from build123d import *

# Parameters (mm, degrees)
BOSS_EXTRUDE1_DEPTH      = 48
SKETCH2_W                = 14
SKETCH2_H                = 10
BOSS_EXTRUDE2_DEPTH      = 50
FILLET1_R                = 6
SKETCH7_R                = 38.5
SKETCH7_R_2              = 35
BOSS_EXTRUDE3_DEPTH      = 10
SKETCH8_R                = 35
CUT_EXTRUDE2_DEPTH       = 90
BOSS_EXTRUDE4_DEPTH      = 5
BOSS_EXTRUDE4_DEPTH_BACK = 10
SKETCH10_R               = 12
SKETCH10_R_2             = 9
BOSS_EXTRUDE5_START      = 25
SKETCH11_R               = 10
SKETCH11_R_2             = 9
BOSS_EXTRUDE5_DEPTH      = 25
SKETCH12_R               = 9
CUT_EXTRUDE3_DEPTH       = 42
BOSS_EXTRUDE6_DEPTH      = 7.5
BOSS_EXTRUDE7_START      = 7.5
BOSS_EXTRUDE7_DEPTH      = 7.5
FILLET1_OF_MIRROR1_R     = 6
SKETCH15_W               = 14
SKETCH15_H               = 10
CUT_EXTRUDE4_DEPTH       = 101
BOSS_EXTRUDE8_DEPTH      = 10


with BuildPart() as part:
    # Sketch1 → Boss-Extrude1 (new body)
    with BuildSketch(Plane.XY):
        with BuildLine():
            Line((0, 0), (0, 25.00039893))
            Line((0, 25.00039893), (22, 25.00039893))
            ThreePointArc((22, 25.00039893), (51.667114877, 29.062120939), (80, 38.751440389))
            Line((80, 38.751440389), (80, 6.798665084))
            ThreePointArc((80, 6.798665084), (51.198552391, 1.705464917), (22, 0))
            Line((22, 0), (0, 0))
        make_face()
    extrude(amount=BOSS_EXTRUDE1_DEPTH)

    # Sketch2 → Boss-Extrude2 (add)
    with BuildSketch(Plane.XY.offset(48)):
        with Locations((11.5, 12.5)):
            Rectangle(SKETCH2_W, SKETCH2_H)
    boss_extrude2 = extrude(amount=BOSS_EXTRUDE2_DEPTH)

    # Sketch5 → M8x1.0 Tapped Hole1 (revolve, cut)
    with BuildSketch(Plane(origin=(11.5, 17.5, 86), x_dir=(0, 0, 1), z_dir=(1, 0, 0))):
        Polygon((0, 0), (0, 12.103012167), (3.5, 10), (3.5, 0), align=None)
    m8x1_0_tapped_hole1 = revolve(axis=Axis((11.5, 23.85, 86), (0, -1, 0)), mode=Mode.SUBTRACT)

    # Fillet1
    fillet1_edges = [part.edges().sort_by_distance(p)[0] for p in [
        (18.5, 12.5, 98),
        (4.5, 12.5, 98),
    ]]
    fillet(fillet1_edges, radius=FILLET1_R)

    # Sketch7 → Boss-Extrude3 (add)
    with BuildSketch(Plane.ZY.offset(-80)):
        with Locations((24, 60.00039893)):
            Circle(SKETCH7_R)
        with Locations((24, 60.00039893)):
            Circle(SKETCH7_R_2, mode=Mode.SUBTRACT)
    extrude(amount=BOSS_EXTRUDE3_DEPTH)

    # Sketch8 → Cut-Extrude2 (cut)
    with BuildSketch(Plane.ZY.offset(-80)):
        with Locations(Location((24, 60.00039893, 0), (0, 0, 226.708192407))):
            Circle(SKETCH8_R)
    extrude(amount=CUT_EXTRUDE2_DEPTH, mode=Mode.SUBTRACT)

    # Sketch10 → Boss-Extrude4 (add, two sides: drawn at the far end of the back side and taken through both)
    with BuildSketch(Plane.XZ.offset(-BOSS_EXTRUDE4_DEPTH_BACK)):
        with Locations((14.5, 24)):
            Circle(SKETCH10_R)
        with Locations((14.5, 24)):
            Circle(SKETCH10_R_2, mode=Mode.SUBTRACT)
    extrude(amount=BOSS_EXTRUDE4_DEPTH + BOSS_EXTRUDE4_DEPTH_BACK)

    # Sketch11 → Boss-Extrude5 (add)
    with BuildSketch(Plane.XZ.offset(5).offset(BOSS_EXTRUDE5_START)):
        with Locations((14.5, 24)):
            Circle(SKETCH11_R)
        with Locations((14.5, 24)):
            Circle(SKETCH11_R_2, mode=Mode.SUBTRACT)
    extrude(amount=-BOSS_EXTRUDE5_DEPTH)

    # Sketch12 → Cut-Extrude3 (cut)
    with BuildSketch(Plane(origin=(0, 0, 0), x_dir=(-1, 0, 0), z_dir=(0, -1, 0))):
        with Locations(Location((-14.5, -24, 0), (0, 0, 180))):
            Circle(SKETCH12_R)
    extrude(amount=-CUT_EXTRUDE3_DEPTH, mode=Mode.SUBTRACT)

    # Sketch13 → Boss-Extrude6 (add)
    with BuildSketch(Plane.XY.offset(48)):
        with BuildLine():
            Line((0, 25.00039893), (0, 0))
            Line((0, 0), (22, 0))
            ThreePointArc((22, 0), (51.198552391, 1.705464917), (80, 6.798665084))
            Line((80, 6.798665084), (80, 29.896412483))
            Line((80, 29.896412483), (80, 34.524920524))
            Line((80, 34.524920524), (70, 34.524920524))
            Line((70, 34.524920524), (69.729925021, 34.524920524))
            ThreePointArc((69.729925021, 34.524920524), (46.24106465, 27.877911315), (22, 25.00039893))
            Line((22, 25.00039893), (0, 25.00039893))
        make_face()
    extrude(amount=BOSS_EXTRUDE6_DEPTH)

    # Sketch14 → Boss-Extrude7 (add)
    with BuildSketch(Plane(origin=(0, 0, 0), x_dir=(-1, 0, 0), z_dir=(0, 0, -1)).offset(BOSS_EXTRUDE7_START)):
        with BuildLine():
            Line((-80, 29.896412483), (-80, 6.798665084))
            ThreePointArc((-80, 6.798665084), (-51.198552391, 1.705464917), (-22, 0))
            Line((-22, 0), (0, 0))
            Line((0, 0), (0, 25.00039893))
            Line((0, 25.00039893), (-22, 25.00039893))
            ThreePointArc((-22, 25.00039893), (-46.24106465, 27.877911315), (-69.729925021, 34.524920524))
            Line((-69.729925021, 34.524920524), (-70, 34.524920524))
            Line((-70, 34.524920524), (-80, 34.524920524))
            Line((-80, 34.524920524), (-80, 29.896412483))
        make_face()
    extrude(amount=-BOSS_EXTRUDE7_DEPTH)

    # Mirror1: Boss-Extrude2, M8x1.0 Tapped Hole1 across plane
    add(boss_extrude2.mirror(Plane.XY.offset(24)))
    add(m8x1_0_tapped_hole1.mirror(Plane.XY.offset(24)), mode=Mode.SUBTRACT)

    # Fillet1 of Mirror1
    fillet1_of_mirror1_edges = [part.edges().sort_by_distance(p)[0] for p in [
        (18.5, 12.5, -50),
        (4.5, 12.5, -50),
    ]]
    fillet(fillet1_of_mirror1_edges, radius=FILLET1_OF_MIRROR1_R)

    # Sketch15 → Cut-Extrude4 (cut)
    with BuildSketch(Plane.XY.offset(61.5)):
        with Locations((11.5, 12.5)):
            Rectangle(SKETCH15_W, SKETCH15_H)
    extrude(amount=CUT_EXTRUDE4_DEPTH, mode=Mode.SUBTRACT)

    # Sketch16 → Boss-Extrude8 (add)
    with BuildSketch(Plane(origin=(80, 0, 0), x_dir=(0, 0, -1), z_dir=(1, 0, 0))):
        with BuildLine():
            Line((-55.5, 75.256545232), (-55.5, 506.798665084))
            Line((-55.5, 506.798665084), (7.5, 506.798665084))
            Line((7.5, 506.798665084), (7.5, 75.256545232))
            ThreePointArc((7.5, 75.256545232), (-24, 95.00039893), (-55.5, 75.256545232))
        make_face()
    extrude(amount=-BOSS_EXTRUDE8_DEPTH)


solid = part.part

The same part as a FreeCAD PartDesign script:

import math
import FreeCAD as App
import Part
import Sketcher
Q = App.Units.Quantity


def edges_at(feature, points):
    """Names of the edges that pass closest to the given points."""
    edges = feature.Shape.Edges
    near = lambda p: min(range(len(edges)), key=lambda i: edges[i].distToShape(Part.Vertex(*p))[0])
    return sorted({f"Edge{near(p) + 1}" for p in points})


def add_polygon(sketch, points):
    """Adds a closed chain of lines whose ends are joined by coincident constraints."""
    first, n = sketch.GeometryCount, len(points)
    for a, b in zip(points, points[1:] + points[:1]):
        sketch.addGeometry(Part.LineSegment(App.Vector(*a, 0), App.Vector(*b, 0)), False)
    for i in range(n):
        sketch.addConstraint(Sketcher.Constraint("Coincident", first + i, 2, first + (i + 1) % n, 1))

doc = App.newDocument("Part")
body = doc.addObject("PartDesign::Body", "Body")

# Sketch on XY plane
sketch1 = body.newObject("Sketcher::SketchObject", "Sketch")
sketch1.AttachmentSupport = (doc.getObject("XY_Plane"), [""])
sketch1.MapMode = "FlatFace"
sketch1.addGeometry([
    Part.LineSegment(App.Vector(0, 25.000399, 0), App.Vector(0, 0, 0)),  # 0
    Part.LineSegment(App.Vector(0, 0, 0), App.Vector(22, 0, 0)),  # 1
    Part.ArcOfCircle(Part.Circle(App.Vector(22, 250.800841, 0), App.Vector(0, 0, 1), 250.800841), math.radians(-90), math.radians(-76.628783)),  # 2
    Part.LineSegment(App.Vector(80, 6.798665, 0), App.Vector(80, 38.75144, 0)),  # 3
    Part.ArcOfCircle(Part.Circle(App.Vector(15.902789, 179.911124, 0), App.Vector(0, 0, 1), 155.03067), math.radians(-87.746029), math.radians(-65.578346)),  # 4
    Part.LineSegment(App.Vector(22, 25.000399, 0), App.Vector(0, 25.000399, 0)),  # 5
], False)
sketch1.addConstraint([
    Sketcher.Constraint("Coincident", 0, 2, 1, 1),
    Sketcher.Constraint("Tangent", 1, 2, 2, 1),
    Sketcher.Constraint("Coincident", 2, 2, 3, 1),
    Sketcher.Constraint("Coincident", 3, 2, 4, 2),
    Sketcher.Constraint("Coincident", 4, 1, 5, 1),
    Sketcher.Constraint("Coincident", 5, 2, 0, 1),
    Sketcher.Constraint("Vertical", 0),
    Sketcher.Constraint("Horizontal", 1),
    Sketcher.Constraint("Vertical", 3),
    Sketcher.Constraint("Horizontal", 5),
    Sketcher.Constraint("Coincident", 0, 2, -1, 1),
    Sketcher.Constraint("Vertical", 1, 2, 4, 1),
    Sketcher.Constraint("DistanceX", 1, 1, 1, 2, Q("22 mm")),
    Sketcher.Constraint("DistanceX", -1, 1, 2, 2, Q("80 mm")),
    Sketcher.Constraint("Radius", 2, Q("250.800841 mm")),
    Sketcher.Constraint("Radius", 4, Q("155.03067 mm")),
    Sketcher.Constraint("DistanceY", 0, 2, 0, 1, Q("25.000399 mm")),
    Sketcher.Constraint("DistanceY", 3, 2, 2, 3, Q("212.049401 mm")),
])
pad1 = body.newObject("PartDesign::Pad", "Pad")
pad1.Profile = sketch1
pad1.Length = 48

# Sketch on XY plane
sketch2 = body.newObject("Sketcher::SketchObject", "Sketch001")
sketch2.AttachmentSupport = (doc.getObject("XY_Plane"), [""])
sketch2.MapMode = "FlatFace"
sketch2.AttachmentOffset = App.Placement(App.Vector(0, 0, 48), App.Rotation())
add_polygon(sketch2, [(4.5, 17.5), (4.5, 7.5), (18.5, 7.5), (18.5, 17.5)])  # lines 0-3
sketch2.addConstraint([
    Sketcher.Constraint("Vertical", 0),
    Sketcher.Constraint("Horizontal", 1),
    Sketcher.Constraint("Vertical", 2),
    Sketcher.Constraint("Horizontal", 3),
    Sketcher.Constraint("DistanceX", 1, 1, 1, 2, Q("14 mm")),
    Sketcher.Constraint("DistanceY", 0, 2, 0, 1, Q("10 mm")),
    Sketcher.Constraint("DistanceX", -1, 1, 0, 2, Q("4.5 mm")),
    Sketcher.Constraint("DistanceY", -1, 1, 0, 2, Q("7.5 mm")),
])
pad2 = body.newObject("PartDesign::Pad", "Pad001")
pad2.Profile = sketch2
pad2.Length = 50

# Sketch on YZ plane
sketch3 = body.newObject("Sketcher::SketchObject", "Sketch002")
sketch3.AttachmentSupport = (doc.getObject("YZ_Plane"), [""])
sketch3.MapMode = "FlatFace"
sketch3.AttachmentOffset = App.Placement(App.Vector(0, 0, 11.5), App.Rotation())
add_polygon(sketch3, [(5.396988, 86), (17.5, 86), (17.5, 89.5), (7.5, 89.5)])  # lines 0-3
sketch3.addGeometry(Part.LineSegment(App.Vector(17.5, 86, 0), App.Vector(5.396988, 86, 0)), True)  # axis
sketch3.addConstraint([
    Sketcher.Constraint("Horizontal", 0),
    Sketcher.Constraint("Vertical", 1),
    Sketcher.Constraint("Horizontal", 2),
    Sketcher.Constraint("Horizontal", 4),
    Sketcher.Constraint("Coincident", 4, 1, 0, 2),
    Sketcher.Constraint("Equal", 0, 4),
    Sketcher.Constraint("DistanceX", 2, 2, 2, 1, Q("10 mm")),
    Sketcher.Constraint("Angle", 3, Q("-121 deg")),
    Sketcher.Constraint("DistanceY", 1, 1, 1, 2, Q("3.5 mm")),
    Sketcher.Constraint("DistanceY", -1, 1, 0, 2, Q("86 mm")),
    Sketcher.Constraint("DistanceX", -1, 1, 0, 2, Q("17.5 mm")),
])
groove = body.newObject("PartDesign::Groove", "Groove")
groove.Profile = sketch3
groove.ReferenceAxis = (sketch3, ["Axis0"])
groove.Angle = 360
doc.recompute()

fillet = body.newObject("PartDesign::Fillet", "Fillet")
fillet.Base = (groove, edges_at(groove, [(18.5, 12.5, 98), (4.5, 12.5, 98)]))
fillet.Radius = 6

# Sketch on YZ plane
sketch4 = body.newObject("Sketcher::SketchObject", "Sketch003")
sketch4.AttachmentSupport = (doc.getObject("YZ_Plane"), [""])
sketch4.MapMode = "FlatFace"
sketch4.AttachmentOffset = App.Placement(App.Vector(0, 0, 80), App.Rotation())
sketch4.addGeometry([
    Part.Circle(App.Vector(60.000399, 24, 0), App.Vector(0, 0, 1), 38.5),
    Part.Circle(App.Vector(60.000399, 24, 0), App.Vector(0, 0, 1), 35),
], False)
sketch4.addConstraint([
    Sketcher.Constraint("Coincident", 1, 3, 0, 3),
    Sketcher.Constraint("Diameter", 0, Q("77 mm")),
    Sketcher.Constraint("Diameter", 1, Q("70 mm")),
    Sketcher.Constraint("DistanceY", -1, 1, 0, 3, Q("24 mm")),
    Sketcher.Constraint("DistanceX", -1, 1, 0, 3, Q("60.000399 mm")),
])
pad3 = body.newObject("PartDesign::Pad", "Pad002")
pad3.Profile = sketch4
pad3.Length = 10
pad3.Reversed = True

# Sketch on YZ plane
sketch5 = body.newObject("Sketcher::SketchObject", "Sketch004")
sketch5.AttachmentSupport = (doc.getObject("YZ_Plane"), [""])
sketch5.MapMode = "FlatFace"
sketch5.AttachmentOffset = App.Placement(App.Vector(0, 0, 80), App.Rotation())
sketch5.addGeometry(Part.Circle(App.Vector(60.000399, 24, 0), App.Vector(0, 0, 1), 35), False)
sketch5.addConstraint([
    Sketcher.Constraint("Diameter", 0, Q("70 mm")),
    Sketcher.Constraint("DistanceY", -1, 1, 0, 3, Q("24 mm")),
    Sketcher.Constraint("DistanceX", -1, 1, 0, 3, Q("60.000399 mm")),
])
pocket1 = body.newObject("PartDesign::Pocket", "Pocket")
pocket1.Profile = sketch5
pocket1.Length = 90

# Sketch on XZ plane
sketch6 = body.newObject("Sketcher::SketchObject", "Sketch005")
sketch6.AttachmentSupport = (doc.getObject("XZ_Plane"), [""])
sketch6.MapMode = "FlatFace"
sketch6.addGeometry([
    Part.Circle(App.Vector(14.5, 24, 0), App.Vector(0, 0, 1), 12),
    Part.Circle(App.Vector(14.5, 24, 0), App.Vector(0, 0, 1), 9),
], False)
sketch6.addConstraint([
    Sketcher.Constraint("Coincident", 1, 3, 0, 3),
    Sketcher.Constraint("Diameter", 0, Q("24 mm")),
    Sketcher.Constraint("Diameter", 1, Q("18 mm")),
    Sketcher.Constraint("DistanceY", -1, 1, 0, 3, Q("24 mm")),
    Sketcher.Constraint("DistanceX", -1, 1, 0, 3, Q("14.5 mm")),
])
pad4 = body.newObject("PartDesign::Pad", "Pad003")
pad4.Profile = sketch6
pad4.Type = "TwoLengths"
pad4.Length = 5
pad4.Length2 = 10

# Sketch on XZ plane
sketch7 = body.newObject("Sketcher::SketchObject", "Sketch006")
sketch7.AttachmentSupport = (doc.getObject("XZ_Plane"), [""])
sketch7.MapMode = "FlatFace"
sketch7.AttachmentOffset = App.Placement(App.Vector(0, 0, 30), App.Rotation())
sketch7.addGeometry([
    Part.Circle(App.Vector(14.5, 24, 0), App.Vector(0, 0, 1), 10),
    Part.Circle(App.Vector(14.5, 24, 0), App.Vector(0, 0, 1), 9),
], False)
sketch7.addConstraint([
    Sketcher.Constraint("Coincident", 1, 3, 0, 3),
    Sketcher.Constraint("Diameter", 0, Q("20 mm")),
    Sketcher.Constraint("Diameter", 1, Q("18 mm")),
    Sketcher.Constraint("DistanceY", -1, 1, 0, 3, Q("24 mm")),
    Sketcher.Constraint("DistanceX", -1, 1, 0, 3, Q("14.5 mm")),
])
pad5 = body.newObject("PartDesign::Pad", "Pad004")
pad5.Profile = sketch7
pad5.Length = 25
pad5.Reversed = True

# Sketch on XZ plane
sketch8 = body.newObject("Sketcher::SketchObject", "Sketch007")
sketch8.AttachmentSupport = (doc.getObject("XZ_Plane"), [""])
sketch8.MapMode = "FlatFace"
sketch8.addGeometry(Part.Circle(App.Vector(14.5, 24, 0), App.Vector(0, 0, 1), 9), False)
sketch8.addConstraint([
    Sketcher.Constraint("Diameter", 0, Q("18 mm")),
    Sketcher.Constraint("DistanceY", -1, 1, 0, 3, Q("24 mm")),
    Sketcher.Constraint("DistanceX", -1, 1, 0, 3, Q("14.5 mm")),
])
pocket2 = body.newObject("PartDesign::Pocket", "Pocket001")
pocket2.Profile = sketch8
pocket2.Length = 42

# Sketch on XY plane
sketch9 = body.newObject("Sketcher::SketchObject", "Sketch008")
sketch9.AttachmentSupport = (doc.getObject("XY_Plane"), [""])
sketch9.MapMode = "FlatFace"
sketch9.AttachmentOffset = App.Placement(App.Vector(0, 0, 48), App.Rotation())
sketch9.addGeometry([
    Part.LineSegment(App.Vector(0, 25.000399, 0), App.Vector(0, 0, 0)),  # 0
    Part.LineSegment(App.Vector(0, 0, 0), App.Vector(22, 0, 0)),  # 1
    Part.ArcOfCircle(Part.Circle(App.Vector(22, 250.800841, 0), App.Vector(0, 0, 1), 250.800841), math.radians(-90), math.radians(-76.628783)),  # 2
    Part.LineSegment(App.Vector(80, 6.798665, 0), App.Vector(80, 34.524921, 0)),  # 3
    Part.LineSegment(App.Vector(80, 34.524921, 0), App.Vector(69.729925, 34.524921, 0)),  # 4
    Part.ArcOfCircle(Part.Circle(App.Vector(15.902789, 179.911124, 0), App.Vector(0, 0, 1), 155.03067), math.radians(-87.746029), math.radians(-69.683658)),  # 5
    Part.LineSegment(App.Vector(22, 25.000399, 0), App.Vector(0, 25.000399, 0)),  # 6
], False)
sketch9.addConstraint([
    Sketcher.Constraint("Coincident", 0, 2, 1, 1),
    Sketcher.Constraint("Tangent", 1, 2, 2, 1),
    Sketcher.Constraint("Coincident", 2, 2, 3, 1),
    Sketcher.Constraint("Coincident", 3, 2, 4, 1),
    Sketcher.Constraint("Coincident", 4, 2, 5, 2),
    Sketcher.Constraint("Coincident", 5, 1, 6, 1),
    Sketcher.Constraint("Coincident", 6, 2, 0, 1),
    Sketcher.Constraint("Vertical", 0),
    Sketcher.Constraint("Horizontal", 1),
    Sketcher.Constraint("Vertical", 3),
    Sketcher.Constraint("Horizontal", 4),
    Sketcher.Constraint("Horizontal", 6),
    Sketcher.Constraint("Coincident", 0, 2, -1, 1),
    Sketcher.Constraint("Vertical", 1, 2, 5, 1),
    Sketcher.Constraint("DistanceX", 1, 1, 1, 2, Q("22 mm")),
    Sketcher.Constraint("DistanceX", -1, 1, 2, 2, Q("80 mm")),
    Sketcher.Constraint("Radius", 2, Q("250.800841 mm")),
    Sketcher.Constraint("Radius", 5, Q("155.03067 mm")),
    Sketcher.Constraint("DistanceY", 0, 2, 0, 1, Q("25.000399 mm")),
    Sketcher.Constraint("DistanceX", 4, 2, 4, 1, Q("10.270075 mm")),
    Sketcher.Constraint("DistanceY", 3, 1, 3, 2, Q("27.726255 mm")),
])
pad6 = body.newObject("PartDesign::Pad", "Pad005")
pad6.Profile = sketch9
pad6.Length = 7.5

# Sketch on XY plane
sketch10 = body.newObject("Sketcher::SketchObject", "Sketch009")
sketch10.AttachmentSupport = (doc.getObject("XY_Plane"), [""])
sketch10.MapMode = "FlatFace"
sketch10.AttachmentOffset = App.Placement(App.Vector(0, 0, -7.5), App.Rotation())
sketch10.addGeometry([
    Part.ArcOfCircle(Part.Circle(App.Vector(22, 250.800841, 0), App.Vector(0, 0, 1), 250.800841), math.radians(-90), math.radians(-76.628783)),  # 0
    Part.LineSegment(App.Vector(22, 0, 0), App.Vector(0, 0, 0)),  # 1
    Part.LineSegment(App.Vector(0, 0, 0), App.Vector(0, 25.000399, 0)),  # 2
    Part.LineSegment(App.Vector(0, 25.000399, 0), App.Vector(22, 25.000399, 0)),  # 3
    Part.ArcOfCircle(Part.Circle(App.Vector(15.902789, 179.911124, 0), App.Vector(0, 0, 1), 155.03067), math.radians(-87.746029), math.radians(-69.683658)),  # 4
    Part.LineSegment(App.Vector(69.729925, 34.524921, 0), App.Vector(80, 34.524921, 0)),  # 5
    Part.LineSegment(App.Vector(80, 34.524921, 0), App.Vector(80, 6.798665, 0)),  # 6
], False)
sketch10.addConstraint([
    Sketcher.Constraint("Tangent", 0, 1, 1, 1),
    Sketcher.Constraint("Coincident", 1, 2, 2, 1),
    Sketcher.Constraint("Coincident", 2, 2, 3, 1),
    Sketcher.Constraint("Coincident", 3, 2, 4, 1),
    Sketcher.Constraint("Coincident", 4, 2, 5, 1),
    Sketcher.Constraint("Coincident", 5, 2, 6, 1),
    Sketcher.Constraint("Coincident", 6, 2, 0, 2),
    Sketcher.Constraint("Horizontal", 1),
    Sketcher.Constraint("Vertical", 2),
    Sketcher.Constraint("Horizontal", 3),
    Sketcher.Constraint("Horizontal", 5),
    Sketcher.Constraint("Vertical", 6),
    Sketcher.Constraint("Coincident", 1, 2, -1, 1),
    Sketcher.Constraint("Vertical", 0, 1, 3, 2),
    Sketcher.Constraint("DistanceX", 1, 2, 1, 1, Q("22 mm")),
    Sketcher.Constraint("DistanceX", -1, 1, 5, 2, Q("80 mm")),
    Sketcher.Constraint("Radius", 0, Q("250.800841 mm")),
    Sketcher.Constraint("Radius", 4, Q("155.03067 mm")),
    Sketcher.Constraint("DistanceY", 2, 1, 2, 2, Q("25.000399 mm")),
    Sketcher.Constraint("DistanceX", 5, 1, 5, 2, Q("10.270075 mm")),
    Sketcher.Constraint("DistanceY", 6, 2, 6, 1, Q("27.726255 mm")),
])
pad7 = body.newObject("PartDesign::Pad", "Pad006")
pad7.Profile = sketch10
pad7.Length = 7.5
doc.recompute()

datumplane = body.newObject("PartDesign::Plane", "DatumPlane")
datumplane.AttachmentSupport = (doc.getObject("XY_Plane"), [""])
datumplane.MapMode = "FlatFace"
datumplane.AttachmentOffset = App.Placement(App.Vector(0, 0, 24), App.Rotation())
mirrored = body.newObject("PartDesign::Mirrored", "Mirrored")
mirrored.Originals = [pad2, groove]
mirrored.MirrorPlane = (datumplane, [""])
body.Tip = mirrored
doc.recompute()

fillet2 = body.newObject("PartDesign::Fillet", "Fillet001")
fillet2.Base = (mirrored, edges_at(mirrored, [(18.5, 12.5, -50), (4.5, 12.5, -50)]))
fillet2.Radius = 6

# Sketch on XY plane
sketch11 = body.newObject("Sketcher::SketchObject", "Sketch010")
sketch11.AttachmentSupport = (doc.getObject("XY_Plane"), [""])
sketch11.MapMode = "FlatFace"
sketch11.AttachmentOffset = App.Placement(App.Vector(0, 0, 61.5), App.Rotation())
add_polygon(sketch11, [(4.5, 17.5), (4.5, 7.5), (18.5, 7.5), (18.5, 17.5)])  # lines 0-3
sketch11.addConstraint([
    Sketcher.Constraint("Vertical", 0),
    Sketcher.Constraint("Horizontal", 1),
    Sketcher.Constraint("Vertical", 2),
    Sketcher.Constraint("Horizontal", 3),
    Sketcher.Constraint("DistanceX", 1, 1, 1, 2, Q("14 mm")),
    Sketcher.Constraint("DistanceY", 0, 2, 0, 1, Q("10 mm")),
    Sketcher.Constraint("DistanceX", -1, 1, 0, 2, Q("4.5 mm")),
    Sketcher.Constraint("DistanceY", -1, 1, 0, 2, Q("7.5 mm")),
])
pocket3 = body.newObject("PartDesign::Pocket", "Pocket002")
pocket3.Profile = sketch11
pocket3.Length = 101
pocket3.Reversed = True

# Sketch on YZ plane
sketch12 = body.newObject("Sketcher::SketchObject", "Sketch011")
sketch12.AttachmentSupport = (doc.getObject("YZ_Plane"), [""])
sketch12.MapMode = "FlatFace"
sketch12.AttachmentOffset = App.Placement(App.Vector(0, 0, 80), App.Rotation())
sketch12.addGeometry([
    Part.LineSegment(App.Vector(506.798665, 55.5, 0), App.Vector(75.256545, 55.5, 0)),
    Part.ArcOfCircle(Part.Circle(App.Vector(60.000399, 24, 0), App.Vector(0, 0, 1), 35), math.radians(-64.158067), math.radians(64.158067)),
    Part.LineSegment(App.Vector(75.256545, -7.5, 0), App.Vector(506.798665, -7.5, 0)),
    Part.LineSegment(App.Vector(506.798665, -7.5, 0), App.Vector(506.798665, 55.5, 0)),
], False)
sketch12.addConstraint([
    Sketcher.Constraint("Coincident", 0, 2, 1, 2),
    Sketcher.Constraint("Coincident", 1, 1, 2, 1),
    Sketcher.Constraint("Coincident", 2, 2, 3, 1),
    Sketcher.Constraint("Coincident", 3, 2, 0, 1),
    Sketcher.Constraint("Horizontal", 0),
    Sketcher.Constraint("Horizontal", 2),
    Sketcher.Constraint("Vertical", 3),
    Sketcher.Constraint("Vertical", 0, 2, 1, 1),
    Sketcher.Constraint("Radius", 1, Q("35 mm")),
    Sketcher.Constraint("DistanceY", 3, 1, 3, 2, Q("63 mm")),
    Sketcher.Constraint("DistanceY", -1, 1, 1, 3, Q("24 mm")),
    Sketcher.Constraint("DistanceX", 0, 2, 0, 1, Q("431.54212 mm")),
    Sketcher.Constraint("DistanceX", -1, 1, 1, 3, Q("60.000399 mm")),
])
pad8 = body.newObject("PartDesign::Pad", "Pad007")
pad8.Profile = sketch12
pad8.Length = 10
pad8.Reversed = True

doc.recompute()
